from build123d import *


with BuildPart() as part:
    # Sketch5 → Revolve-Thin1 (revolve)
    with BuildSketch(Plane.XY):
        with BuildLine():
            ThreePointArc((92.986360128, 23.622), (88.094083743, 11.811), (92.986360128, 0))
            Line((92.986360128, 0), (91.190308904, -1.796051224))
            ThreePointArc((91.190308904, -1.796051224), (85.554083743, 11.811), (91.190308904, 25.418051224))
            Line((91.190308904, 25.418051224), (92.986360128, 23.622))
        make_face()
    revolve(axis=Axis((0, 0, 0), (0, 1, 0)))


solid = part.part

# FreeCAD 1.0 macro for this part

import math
import FreeCAD as App
import Part
import Sketcher
from FreeCAD import Vector
Q = App.Units.Quantity

doc = App.newDocument("Part")
body = doc.addObject("PartDesign::Body", "Body")

sketch1 = doc.addObject("Sketcher::SketchObject", "Sketch")
body.addObject(sketch1)
sketch1.AttachmentSupport = (doc.XY_Plane, [""])
sketch1.MapMode = "FlatFace"
sketch1.addGeometry(Part.ArcOfCircle(Part.Circle(Vector(104.79736, 11.811, 0), Vector(0, 0, 1), 16.703276), math.radians(135), math.radians(225)), False)
sketch1.addGeometry(Part.LineSegment(Vector(92.98636, 23.622, 0), Vector(91.190309, 25.418051, 0)), False)
sketch1.addGeometry(Part.ArcOfCircle(Part.Circle(Vector(104.79736, 11.811, 0), Vector(0, 0, 1), 19.243276), math.radians(135), math.radians(225)), False)
sketch1.addGeometry(Part.LineSegment(Vector(91.190309, -1.796051, 0), Vector(92.98636, 0, 0)), False)
sketch1.addConstraint(Sketcher.Constraint("Coincident", 0, 1, 1, 1))
sketch1.addConstraint(Sketcher.Constraint("Coincident", 1, 2, 2, 1))
sketch1.addConstraint(Sketcher.Constraint("Coincident", 2, 2, 3, 1))
sketch1.addConstraint(Sketcher.Constraint("Coincident", 3, 2, 0, 2))
sketch1.addConstraint(Sketcher.Constraint("Coincident", 2, 3, 0, 3))
sketch1.addConstraint(Sketcher.Constraint("PointOnObject", 3, 2, -1))
sketch1.addConstraint(Sketcher.Constraint("Perpendicular", 1, 3))
sketch1.addConstraint(Sketcher.Constraint("Vertical", 1, 2, 2, 2))
sketch1.addConstraint(Sketcher.Constraint("Vertical", 0, 1, 3, 2))
sketch1.addConstraint(Sketcher.Constraint("Distance", 1, Q("0.1 in")))
sketch1.addConstraint(Sketcher.Constraint("DistanceY", -1, 1, 0, 1, Q("0.93 in")))
sketch1.addConstraint(Sketcher.Constraint("DistanceX", 0, 1, 2, 3, Q("0.465 in")))
sketch1.addConstraint(Sketcher.Constraint("DistanceX", -1, 1, 0, 3, Q("104.79736 mm")))
revolution = doc.addObject("PartDesign::Revolution", "Revolution")
body.addObject(revolution)
revolution.Profile = sketch1
revolution.ReferenceAxis = (sketch1, ["V_Axis"])
revolution.Angle = 360

doc.recompute()
